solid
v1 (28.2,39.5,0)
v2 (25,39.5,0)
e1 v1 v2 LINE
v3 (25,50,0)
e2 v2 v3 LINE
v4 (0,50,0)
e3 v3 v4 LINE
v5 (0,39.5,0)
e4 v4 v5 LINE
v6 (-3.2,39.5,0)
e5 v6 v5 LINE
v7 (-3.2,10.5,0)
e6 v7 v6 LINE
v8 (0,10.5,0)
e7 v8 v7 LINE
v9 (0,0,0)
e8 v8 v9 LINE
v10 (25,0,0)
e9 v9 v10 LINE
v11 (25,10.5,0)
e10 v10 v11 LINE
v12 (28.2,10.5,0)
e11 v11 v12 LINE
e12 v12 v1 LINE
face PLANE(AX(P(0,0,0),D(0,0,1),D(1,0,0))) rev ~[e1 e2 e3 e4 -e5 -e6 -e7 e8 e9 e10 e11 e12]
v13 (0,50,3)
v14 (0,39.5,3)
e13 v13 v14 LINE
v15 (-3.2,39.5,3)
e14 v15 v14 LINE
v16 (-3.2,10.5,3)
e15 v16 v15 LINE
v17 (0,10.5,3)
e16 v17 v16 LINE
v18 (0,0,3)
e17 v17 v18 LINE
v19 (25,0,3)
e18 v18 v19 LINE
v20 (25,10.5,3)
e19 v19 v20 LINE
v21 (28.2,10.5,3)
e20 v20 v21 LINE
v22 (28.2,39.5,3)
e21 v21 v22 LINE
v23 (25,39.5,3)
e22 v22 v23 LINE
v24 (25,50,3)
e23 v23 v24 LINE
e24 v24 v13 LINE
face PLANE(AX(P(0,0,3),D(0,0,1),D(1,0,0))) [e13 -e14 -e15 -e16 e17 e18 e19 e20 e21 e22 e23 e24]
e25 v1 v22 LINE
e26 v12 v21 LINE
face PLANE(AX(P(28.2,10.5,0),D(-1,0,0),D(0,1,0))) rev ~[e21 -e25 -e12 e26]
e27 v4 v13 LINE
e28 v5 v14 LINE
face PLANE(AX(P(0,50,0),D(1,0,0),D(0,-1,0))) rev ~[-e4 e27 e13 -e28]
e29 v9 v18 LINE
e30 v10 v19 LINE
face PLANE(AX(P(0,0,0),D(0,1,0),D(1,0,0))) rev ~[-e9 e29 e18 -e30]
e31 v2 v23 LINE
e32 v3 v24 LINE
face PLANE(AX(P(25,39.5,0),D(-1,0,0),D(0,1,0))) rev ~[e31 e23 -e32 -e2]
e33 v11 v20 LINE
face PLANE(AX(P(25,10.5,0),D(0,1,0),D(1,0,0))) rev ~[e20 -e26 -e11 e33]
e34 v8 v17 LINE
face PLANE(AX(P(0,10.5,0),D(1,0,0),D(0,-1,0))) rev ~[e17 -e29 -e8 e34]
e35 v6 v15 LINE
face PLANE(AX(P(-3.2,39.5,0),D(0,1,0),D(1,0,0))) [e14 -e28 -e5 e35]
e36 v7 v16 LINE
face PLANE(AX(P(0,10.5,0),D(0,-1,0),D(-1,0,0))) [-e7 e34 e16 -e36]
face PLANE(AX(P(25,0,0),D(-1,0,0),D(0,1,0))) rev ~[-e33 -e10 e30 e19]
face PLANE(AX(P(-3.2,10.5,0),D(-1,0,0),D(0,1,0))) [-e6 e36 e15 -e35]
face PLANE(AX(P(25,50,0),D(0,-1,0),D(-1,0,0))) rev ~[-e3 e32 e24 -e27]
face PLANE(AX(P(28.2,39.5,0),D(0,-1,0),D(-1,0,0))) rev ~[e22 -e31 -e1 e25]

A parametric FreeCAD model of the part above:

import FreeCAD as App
import Part
import Sketcher

V = App.Vector

doc = App.newDocument("Part")
params = doc.addObject("Spreadsheet::Sheet", "Params")
for row, (alias, value) in enumerate([
    ("sketch1_width", "25 mm"),
    ("sketch1_height", "29 mm"),
    ("sketch1_width2", "3.2 mm"),
    ("pad1_length", "3 mm"),
], start=1):
    params.set(f"A{row}", alias)
    params.set(f"B{row}", "=" + value)
    params.setAlias(f"B{row}", alias)

body = doc.addObject("PartDesign::Body", "Body")

# Sketch on XY plane
sketch1 = body.newObject("Sketcher::SketchObject", "Sketch")
sketch1.AttachmentSupport = (doc.getObject("XY_Plane"), [""])
sketch1.MapMode = "FlatFace"
sketch1.addGeometry([
    Part.LineSegment(V(0, 10.5, 0), V(0, 0, 0)),  # 0
    Part.LineSegment(V(0, 0, 0), V(25, 0, 0)),  # 1
    Part.LineSegment(V(25, 0, 0), V(25, 10.5, 0)),  # 2
    Part.LineSegment(V(25, 10.5, 0), V(28.2, 10.5, 0)),  # 3
    Part.LineSegment(V(28.2, 10.5, 0), V(28.2, 39.5, 0)),  # 4
    Part.LineSegment(V(28.2, 39.5, 0), V(25, 39.5, 0)),  # 5
    Part.LineSegment(V(25, 39.5, 0), V(25, 50, 0)),  # 6
    Part.LineSegment(V(25, 50, 0), V(0, 50, 0)),  # 7
    Part.LineSegment(V(0, 50, 0), V(0, 39.5, 0)),  # 8
    Part.LineSegment(V(0, 39.5, 0), V(-3.2, 39.5, 0)),  # 9
    Part.LineSegment(V(-3.2, 39.5, 0), V(-3.2, 10.5, 0)),  # 10
    Part.LineSegment(V(-3.2, 10.5, 0), V(0, 10.5, 0)),  # 11
], False)
sketch1.addConstraint([
    Sketcher.Constraint("Coincident", 0, 2, 1, 1),
    Sketcher.Constraint("Coincident", 1, 2, 2, 1),
    Sketcher.Constraint("Coincident", 2, 2, 3, 1),
    Sketcher.Constraint("Coincident", 3, 2, 4, 1),
    Sketcher.Constraint("Coincident", 4, 2, 5, 1),
    Sketcher.Constraint("Coincident", 5, 2, 6, 1),
    Sketcher.Constraint("Coincident", 6, 2, 7, 1),
    Sketcher.Constraint("Coincident", 7, 2, 8, 1),
    Sketcher.Constraint("Coincident", 8, 2, 9, 1),
    Sketcher.Constraint("Coincident", 9, 2, 10, 1),
    Sketcher.Constraint("Coincident", 10, 2, 11, 1),
    Sketcher.Constraint("Coincident", 11, 2, 0, 1),
    Sketcher.Constraint("Vertical", 0),
    Sketcher.Constraint("Horizontal", 1),
    Sketcher.Constraint("Vertical", 2),
    Sketcher.Constraint("Horizontal", 3),
    Sketcher.Constraint("Vertical", 4),
    Sketcher.Constraint("Horizontal", 5),
    Sketcher.Constraint("Vertical", 6),
    Sketcher.Constraint("Horizontal", 7),
    Sketcher.Constraint("Vertical", 8),
    Sketcher.Constraint("Horizontal", 9),
    Sketcher.Constraint("Vertical", 10),
    Sketcher.Constraint("Horizontal", 11),
    Sketcher.Constraint("Coincident", 0, 2, -1, 1),
    Sketcher.Constraint("PointOnObject", 7, 2, -2),
    Sketcher.Constraint("Horizontal", 5, 2, 8, 2),
    Sketcher.Constraint("Horizontal", 3, 2, 10, 2),
    Sketcher.Constraint("Vertical", 2, 2, 5, 2),
    Sketcher.Constraint("Equal", 5, 9),
    Sketcher.Constraint("Equal", 2, 6),
    Sketcher.Constraint("DistanceX", 1, 1, 1, 2, 25.0),
    Sketcher.Constraint("DistanceY", 4, 1, 4, 2, 29.0),
    Sketcher.Constraint("DistanceX", 3, 1, 3, 2, 3.2),
    Sketcher.Constraint("DistanceY", -1, 1, 6, 2, 50.0),
])
sketch1.setExpression("Constraints[31]", "Params.sketch1_width")
sketch1.setExpression("Constraints[32]", "Params.sketch1_height")
sketch1.setExpression("Constraints[33]", "Params.sketch1_width2")
pad1 = body.newObject("PartDesign::Pad", "Pad")
pad1.Profile = sketch1
pad1.setExpression("Length", "Params.pad1_length")

doc.recompute()
